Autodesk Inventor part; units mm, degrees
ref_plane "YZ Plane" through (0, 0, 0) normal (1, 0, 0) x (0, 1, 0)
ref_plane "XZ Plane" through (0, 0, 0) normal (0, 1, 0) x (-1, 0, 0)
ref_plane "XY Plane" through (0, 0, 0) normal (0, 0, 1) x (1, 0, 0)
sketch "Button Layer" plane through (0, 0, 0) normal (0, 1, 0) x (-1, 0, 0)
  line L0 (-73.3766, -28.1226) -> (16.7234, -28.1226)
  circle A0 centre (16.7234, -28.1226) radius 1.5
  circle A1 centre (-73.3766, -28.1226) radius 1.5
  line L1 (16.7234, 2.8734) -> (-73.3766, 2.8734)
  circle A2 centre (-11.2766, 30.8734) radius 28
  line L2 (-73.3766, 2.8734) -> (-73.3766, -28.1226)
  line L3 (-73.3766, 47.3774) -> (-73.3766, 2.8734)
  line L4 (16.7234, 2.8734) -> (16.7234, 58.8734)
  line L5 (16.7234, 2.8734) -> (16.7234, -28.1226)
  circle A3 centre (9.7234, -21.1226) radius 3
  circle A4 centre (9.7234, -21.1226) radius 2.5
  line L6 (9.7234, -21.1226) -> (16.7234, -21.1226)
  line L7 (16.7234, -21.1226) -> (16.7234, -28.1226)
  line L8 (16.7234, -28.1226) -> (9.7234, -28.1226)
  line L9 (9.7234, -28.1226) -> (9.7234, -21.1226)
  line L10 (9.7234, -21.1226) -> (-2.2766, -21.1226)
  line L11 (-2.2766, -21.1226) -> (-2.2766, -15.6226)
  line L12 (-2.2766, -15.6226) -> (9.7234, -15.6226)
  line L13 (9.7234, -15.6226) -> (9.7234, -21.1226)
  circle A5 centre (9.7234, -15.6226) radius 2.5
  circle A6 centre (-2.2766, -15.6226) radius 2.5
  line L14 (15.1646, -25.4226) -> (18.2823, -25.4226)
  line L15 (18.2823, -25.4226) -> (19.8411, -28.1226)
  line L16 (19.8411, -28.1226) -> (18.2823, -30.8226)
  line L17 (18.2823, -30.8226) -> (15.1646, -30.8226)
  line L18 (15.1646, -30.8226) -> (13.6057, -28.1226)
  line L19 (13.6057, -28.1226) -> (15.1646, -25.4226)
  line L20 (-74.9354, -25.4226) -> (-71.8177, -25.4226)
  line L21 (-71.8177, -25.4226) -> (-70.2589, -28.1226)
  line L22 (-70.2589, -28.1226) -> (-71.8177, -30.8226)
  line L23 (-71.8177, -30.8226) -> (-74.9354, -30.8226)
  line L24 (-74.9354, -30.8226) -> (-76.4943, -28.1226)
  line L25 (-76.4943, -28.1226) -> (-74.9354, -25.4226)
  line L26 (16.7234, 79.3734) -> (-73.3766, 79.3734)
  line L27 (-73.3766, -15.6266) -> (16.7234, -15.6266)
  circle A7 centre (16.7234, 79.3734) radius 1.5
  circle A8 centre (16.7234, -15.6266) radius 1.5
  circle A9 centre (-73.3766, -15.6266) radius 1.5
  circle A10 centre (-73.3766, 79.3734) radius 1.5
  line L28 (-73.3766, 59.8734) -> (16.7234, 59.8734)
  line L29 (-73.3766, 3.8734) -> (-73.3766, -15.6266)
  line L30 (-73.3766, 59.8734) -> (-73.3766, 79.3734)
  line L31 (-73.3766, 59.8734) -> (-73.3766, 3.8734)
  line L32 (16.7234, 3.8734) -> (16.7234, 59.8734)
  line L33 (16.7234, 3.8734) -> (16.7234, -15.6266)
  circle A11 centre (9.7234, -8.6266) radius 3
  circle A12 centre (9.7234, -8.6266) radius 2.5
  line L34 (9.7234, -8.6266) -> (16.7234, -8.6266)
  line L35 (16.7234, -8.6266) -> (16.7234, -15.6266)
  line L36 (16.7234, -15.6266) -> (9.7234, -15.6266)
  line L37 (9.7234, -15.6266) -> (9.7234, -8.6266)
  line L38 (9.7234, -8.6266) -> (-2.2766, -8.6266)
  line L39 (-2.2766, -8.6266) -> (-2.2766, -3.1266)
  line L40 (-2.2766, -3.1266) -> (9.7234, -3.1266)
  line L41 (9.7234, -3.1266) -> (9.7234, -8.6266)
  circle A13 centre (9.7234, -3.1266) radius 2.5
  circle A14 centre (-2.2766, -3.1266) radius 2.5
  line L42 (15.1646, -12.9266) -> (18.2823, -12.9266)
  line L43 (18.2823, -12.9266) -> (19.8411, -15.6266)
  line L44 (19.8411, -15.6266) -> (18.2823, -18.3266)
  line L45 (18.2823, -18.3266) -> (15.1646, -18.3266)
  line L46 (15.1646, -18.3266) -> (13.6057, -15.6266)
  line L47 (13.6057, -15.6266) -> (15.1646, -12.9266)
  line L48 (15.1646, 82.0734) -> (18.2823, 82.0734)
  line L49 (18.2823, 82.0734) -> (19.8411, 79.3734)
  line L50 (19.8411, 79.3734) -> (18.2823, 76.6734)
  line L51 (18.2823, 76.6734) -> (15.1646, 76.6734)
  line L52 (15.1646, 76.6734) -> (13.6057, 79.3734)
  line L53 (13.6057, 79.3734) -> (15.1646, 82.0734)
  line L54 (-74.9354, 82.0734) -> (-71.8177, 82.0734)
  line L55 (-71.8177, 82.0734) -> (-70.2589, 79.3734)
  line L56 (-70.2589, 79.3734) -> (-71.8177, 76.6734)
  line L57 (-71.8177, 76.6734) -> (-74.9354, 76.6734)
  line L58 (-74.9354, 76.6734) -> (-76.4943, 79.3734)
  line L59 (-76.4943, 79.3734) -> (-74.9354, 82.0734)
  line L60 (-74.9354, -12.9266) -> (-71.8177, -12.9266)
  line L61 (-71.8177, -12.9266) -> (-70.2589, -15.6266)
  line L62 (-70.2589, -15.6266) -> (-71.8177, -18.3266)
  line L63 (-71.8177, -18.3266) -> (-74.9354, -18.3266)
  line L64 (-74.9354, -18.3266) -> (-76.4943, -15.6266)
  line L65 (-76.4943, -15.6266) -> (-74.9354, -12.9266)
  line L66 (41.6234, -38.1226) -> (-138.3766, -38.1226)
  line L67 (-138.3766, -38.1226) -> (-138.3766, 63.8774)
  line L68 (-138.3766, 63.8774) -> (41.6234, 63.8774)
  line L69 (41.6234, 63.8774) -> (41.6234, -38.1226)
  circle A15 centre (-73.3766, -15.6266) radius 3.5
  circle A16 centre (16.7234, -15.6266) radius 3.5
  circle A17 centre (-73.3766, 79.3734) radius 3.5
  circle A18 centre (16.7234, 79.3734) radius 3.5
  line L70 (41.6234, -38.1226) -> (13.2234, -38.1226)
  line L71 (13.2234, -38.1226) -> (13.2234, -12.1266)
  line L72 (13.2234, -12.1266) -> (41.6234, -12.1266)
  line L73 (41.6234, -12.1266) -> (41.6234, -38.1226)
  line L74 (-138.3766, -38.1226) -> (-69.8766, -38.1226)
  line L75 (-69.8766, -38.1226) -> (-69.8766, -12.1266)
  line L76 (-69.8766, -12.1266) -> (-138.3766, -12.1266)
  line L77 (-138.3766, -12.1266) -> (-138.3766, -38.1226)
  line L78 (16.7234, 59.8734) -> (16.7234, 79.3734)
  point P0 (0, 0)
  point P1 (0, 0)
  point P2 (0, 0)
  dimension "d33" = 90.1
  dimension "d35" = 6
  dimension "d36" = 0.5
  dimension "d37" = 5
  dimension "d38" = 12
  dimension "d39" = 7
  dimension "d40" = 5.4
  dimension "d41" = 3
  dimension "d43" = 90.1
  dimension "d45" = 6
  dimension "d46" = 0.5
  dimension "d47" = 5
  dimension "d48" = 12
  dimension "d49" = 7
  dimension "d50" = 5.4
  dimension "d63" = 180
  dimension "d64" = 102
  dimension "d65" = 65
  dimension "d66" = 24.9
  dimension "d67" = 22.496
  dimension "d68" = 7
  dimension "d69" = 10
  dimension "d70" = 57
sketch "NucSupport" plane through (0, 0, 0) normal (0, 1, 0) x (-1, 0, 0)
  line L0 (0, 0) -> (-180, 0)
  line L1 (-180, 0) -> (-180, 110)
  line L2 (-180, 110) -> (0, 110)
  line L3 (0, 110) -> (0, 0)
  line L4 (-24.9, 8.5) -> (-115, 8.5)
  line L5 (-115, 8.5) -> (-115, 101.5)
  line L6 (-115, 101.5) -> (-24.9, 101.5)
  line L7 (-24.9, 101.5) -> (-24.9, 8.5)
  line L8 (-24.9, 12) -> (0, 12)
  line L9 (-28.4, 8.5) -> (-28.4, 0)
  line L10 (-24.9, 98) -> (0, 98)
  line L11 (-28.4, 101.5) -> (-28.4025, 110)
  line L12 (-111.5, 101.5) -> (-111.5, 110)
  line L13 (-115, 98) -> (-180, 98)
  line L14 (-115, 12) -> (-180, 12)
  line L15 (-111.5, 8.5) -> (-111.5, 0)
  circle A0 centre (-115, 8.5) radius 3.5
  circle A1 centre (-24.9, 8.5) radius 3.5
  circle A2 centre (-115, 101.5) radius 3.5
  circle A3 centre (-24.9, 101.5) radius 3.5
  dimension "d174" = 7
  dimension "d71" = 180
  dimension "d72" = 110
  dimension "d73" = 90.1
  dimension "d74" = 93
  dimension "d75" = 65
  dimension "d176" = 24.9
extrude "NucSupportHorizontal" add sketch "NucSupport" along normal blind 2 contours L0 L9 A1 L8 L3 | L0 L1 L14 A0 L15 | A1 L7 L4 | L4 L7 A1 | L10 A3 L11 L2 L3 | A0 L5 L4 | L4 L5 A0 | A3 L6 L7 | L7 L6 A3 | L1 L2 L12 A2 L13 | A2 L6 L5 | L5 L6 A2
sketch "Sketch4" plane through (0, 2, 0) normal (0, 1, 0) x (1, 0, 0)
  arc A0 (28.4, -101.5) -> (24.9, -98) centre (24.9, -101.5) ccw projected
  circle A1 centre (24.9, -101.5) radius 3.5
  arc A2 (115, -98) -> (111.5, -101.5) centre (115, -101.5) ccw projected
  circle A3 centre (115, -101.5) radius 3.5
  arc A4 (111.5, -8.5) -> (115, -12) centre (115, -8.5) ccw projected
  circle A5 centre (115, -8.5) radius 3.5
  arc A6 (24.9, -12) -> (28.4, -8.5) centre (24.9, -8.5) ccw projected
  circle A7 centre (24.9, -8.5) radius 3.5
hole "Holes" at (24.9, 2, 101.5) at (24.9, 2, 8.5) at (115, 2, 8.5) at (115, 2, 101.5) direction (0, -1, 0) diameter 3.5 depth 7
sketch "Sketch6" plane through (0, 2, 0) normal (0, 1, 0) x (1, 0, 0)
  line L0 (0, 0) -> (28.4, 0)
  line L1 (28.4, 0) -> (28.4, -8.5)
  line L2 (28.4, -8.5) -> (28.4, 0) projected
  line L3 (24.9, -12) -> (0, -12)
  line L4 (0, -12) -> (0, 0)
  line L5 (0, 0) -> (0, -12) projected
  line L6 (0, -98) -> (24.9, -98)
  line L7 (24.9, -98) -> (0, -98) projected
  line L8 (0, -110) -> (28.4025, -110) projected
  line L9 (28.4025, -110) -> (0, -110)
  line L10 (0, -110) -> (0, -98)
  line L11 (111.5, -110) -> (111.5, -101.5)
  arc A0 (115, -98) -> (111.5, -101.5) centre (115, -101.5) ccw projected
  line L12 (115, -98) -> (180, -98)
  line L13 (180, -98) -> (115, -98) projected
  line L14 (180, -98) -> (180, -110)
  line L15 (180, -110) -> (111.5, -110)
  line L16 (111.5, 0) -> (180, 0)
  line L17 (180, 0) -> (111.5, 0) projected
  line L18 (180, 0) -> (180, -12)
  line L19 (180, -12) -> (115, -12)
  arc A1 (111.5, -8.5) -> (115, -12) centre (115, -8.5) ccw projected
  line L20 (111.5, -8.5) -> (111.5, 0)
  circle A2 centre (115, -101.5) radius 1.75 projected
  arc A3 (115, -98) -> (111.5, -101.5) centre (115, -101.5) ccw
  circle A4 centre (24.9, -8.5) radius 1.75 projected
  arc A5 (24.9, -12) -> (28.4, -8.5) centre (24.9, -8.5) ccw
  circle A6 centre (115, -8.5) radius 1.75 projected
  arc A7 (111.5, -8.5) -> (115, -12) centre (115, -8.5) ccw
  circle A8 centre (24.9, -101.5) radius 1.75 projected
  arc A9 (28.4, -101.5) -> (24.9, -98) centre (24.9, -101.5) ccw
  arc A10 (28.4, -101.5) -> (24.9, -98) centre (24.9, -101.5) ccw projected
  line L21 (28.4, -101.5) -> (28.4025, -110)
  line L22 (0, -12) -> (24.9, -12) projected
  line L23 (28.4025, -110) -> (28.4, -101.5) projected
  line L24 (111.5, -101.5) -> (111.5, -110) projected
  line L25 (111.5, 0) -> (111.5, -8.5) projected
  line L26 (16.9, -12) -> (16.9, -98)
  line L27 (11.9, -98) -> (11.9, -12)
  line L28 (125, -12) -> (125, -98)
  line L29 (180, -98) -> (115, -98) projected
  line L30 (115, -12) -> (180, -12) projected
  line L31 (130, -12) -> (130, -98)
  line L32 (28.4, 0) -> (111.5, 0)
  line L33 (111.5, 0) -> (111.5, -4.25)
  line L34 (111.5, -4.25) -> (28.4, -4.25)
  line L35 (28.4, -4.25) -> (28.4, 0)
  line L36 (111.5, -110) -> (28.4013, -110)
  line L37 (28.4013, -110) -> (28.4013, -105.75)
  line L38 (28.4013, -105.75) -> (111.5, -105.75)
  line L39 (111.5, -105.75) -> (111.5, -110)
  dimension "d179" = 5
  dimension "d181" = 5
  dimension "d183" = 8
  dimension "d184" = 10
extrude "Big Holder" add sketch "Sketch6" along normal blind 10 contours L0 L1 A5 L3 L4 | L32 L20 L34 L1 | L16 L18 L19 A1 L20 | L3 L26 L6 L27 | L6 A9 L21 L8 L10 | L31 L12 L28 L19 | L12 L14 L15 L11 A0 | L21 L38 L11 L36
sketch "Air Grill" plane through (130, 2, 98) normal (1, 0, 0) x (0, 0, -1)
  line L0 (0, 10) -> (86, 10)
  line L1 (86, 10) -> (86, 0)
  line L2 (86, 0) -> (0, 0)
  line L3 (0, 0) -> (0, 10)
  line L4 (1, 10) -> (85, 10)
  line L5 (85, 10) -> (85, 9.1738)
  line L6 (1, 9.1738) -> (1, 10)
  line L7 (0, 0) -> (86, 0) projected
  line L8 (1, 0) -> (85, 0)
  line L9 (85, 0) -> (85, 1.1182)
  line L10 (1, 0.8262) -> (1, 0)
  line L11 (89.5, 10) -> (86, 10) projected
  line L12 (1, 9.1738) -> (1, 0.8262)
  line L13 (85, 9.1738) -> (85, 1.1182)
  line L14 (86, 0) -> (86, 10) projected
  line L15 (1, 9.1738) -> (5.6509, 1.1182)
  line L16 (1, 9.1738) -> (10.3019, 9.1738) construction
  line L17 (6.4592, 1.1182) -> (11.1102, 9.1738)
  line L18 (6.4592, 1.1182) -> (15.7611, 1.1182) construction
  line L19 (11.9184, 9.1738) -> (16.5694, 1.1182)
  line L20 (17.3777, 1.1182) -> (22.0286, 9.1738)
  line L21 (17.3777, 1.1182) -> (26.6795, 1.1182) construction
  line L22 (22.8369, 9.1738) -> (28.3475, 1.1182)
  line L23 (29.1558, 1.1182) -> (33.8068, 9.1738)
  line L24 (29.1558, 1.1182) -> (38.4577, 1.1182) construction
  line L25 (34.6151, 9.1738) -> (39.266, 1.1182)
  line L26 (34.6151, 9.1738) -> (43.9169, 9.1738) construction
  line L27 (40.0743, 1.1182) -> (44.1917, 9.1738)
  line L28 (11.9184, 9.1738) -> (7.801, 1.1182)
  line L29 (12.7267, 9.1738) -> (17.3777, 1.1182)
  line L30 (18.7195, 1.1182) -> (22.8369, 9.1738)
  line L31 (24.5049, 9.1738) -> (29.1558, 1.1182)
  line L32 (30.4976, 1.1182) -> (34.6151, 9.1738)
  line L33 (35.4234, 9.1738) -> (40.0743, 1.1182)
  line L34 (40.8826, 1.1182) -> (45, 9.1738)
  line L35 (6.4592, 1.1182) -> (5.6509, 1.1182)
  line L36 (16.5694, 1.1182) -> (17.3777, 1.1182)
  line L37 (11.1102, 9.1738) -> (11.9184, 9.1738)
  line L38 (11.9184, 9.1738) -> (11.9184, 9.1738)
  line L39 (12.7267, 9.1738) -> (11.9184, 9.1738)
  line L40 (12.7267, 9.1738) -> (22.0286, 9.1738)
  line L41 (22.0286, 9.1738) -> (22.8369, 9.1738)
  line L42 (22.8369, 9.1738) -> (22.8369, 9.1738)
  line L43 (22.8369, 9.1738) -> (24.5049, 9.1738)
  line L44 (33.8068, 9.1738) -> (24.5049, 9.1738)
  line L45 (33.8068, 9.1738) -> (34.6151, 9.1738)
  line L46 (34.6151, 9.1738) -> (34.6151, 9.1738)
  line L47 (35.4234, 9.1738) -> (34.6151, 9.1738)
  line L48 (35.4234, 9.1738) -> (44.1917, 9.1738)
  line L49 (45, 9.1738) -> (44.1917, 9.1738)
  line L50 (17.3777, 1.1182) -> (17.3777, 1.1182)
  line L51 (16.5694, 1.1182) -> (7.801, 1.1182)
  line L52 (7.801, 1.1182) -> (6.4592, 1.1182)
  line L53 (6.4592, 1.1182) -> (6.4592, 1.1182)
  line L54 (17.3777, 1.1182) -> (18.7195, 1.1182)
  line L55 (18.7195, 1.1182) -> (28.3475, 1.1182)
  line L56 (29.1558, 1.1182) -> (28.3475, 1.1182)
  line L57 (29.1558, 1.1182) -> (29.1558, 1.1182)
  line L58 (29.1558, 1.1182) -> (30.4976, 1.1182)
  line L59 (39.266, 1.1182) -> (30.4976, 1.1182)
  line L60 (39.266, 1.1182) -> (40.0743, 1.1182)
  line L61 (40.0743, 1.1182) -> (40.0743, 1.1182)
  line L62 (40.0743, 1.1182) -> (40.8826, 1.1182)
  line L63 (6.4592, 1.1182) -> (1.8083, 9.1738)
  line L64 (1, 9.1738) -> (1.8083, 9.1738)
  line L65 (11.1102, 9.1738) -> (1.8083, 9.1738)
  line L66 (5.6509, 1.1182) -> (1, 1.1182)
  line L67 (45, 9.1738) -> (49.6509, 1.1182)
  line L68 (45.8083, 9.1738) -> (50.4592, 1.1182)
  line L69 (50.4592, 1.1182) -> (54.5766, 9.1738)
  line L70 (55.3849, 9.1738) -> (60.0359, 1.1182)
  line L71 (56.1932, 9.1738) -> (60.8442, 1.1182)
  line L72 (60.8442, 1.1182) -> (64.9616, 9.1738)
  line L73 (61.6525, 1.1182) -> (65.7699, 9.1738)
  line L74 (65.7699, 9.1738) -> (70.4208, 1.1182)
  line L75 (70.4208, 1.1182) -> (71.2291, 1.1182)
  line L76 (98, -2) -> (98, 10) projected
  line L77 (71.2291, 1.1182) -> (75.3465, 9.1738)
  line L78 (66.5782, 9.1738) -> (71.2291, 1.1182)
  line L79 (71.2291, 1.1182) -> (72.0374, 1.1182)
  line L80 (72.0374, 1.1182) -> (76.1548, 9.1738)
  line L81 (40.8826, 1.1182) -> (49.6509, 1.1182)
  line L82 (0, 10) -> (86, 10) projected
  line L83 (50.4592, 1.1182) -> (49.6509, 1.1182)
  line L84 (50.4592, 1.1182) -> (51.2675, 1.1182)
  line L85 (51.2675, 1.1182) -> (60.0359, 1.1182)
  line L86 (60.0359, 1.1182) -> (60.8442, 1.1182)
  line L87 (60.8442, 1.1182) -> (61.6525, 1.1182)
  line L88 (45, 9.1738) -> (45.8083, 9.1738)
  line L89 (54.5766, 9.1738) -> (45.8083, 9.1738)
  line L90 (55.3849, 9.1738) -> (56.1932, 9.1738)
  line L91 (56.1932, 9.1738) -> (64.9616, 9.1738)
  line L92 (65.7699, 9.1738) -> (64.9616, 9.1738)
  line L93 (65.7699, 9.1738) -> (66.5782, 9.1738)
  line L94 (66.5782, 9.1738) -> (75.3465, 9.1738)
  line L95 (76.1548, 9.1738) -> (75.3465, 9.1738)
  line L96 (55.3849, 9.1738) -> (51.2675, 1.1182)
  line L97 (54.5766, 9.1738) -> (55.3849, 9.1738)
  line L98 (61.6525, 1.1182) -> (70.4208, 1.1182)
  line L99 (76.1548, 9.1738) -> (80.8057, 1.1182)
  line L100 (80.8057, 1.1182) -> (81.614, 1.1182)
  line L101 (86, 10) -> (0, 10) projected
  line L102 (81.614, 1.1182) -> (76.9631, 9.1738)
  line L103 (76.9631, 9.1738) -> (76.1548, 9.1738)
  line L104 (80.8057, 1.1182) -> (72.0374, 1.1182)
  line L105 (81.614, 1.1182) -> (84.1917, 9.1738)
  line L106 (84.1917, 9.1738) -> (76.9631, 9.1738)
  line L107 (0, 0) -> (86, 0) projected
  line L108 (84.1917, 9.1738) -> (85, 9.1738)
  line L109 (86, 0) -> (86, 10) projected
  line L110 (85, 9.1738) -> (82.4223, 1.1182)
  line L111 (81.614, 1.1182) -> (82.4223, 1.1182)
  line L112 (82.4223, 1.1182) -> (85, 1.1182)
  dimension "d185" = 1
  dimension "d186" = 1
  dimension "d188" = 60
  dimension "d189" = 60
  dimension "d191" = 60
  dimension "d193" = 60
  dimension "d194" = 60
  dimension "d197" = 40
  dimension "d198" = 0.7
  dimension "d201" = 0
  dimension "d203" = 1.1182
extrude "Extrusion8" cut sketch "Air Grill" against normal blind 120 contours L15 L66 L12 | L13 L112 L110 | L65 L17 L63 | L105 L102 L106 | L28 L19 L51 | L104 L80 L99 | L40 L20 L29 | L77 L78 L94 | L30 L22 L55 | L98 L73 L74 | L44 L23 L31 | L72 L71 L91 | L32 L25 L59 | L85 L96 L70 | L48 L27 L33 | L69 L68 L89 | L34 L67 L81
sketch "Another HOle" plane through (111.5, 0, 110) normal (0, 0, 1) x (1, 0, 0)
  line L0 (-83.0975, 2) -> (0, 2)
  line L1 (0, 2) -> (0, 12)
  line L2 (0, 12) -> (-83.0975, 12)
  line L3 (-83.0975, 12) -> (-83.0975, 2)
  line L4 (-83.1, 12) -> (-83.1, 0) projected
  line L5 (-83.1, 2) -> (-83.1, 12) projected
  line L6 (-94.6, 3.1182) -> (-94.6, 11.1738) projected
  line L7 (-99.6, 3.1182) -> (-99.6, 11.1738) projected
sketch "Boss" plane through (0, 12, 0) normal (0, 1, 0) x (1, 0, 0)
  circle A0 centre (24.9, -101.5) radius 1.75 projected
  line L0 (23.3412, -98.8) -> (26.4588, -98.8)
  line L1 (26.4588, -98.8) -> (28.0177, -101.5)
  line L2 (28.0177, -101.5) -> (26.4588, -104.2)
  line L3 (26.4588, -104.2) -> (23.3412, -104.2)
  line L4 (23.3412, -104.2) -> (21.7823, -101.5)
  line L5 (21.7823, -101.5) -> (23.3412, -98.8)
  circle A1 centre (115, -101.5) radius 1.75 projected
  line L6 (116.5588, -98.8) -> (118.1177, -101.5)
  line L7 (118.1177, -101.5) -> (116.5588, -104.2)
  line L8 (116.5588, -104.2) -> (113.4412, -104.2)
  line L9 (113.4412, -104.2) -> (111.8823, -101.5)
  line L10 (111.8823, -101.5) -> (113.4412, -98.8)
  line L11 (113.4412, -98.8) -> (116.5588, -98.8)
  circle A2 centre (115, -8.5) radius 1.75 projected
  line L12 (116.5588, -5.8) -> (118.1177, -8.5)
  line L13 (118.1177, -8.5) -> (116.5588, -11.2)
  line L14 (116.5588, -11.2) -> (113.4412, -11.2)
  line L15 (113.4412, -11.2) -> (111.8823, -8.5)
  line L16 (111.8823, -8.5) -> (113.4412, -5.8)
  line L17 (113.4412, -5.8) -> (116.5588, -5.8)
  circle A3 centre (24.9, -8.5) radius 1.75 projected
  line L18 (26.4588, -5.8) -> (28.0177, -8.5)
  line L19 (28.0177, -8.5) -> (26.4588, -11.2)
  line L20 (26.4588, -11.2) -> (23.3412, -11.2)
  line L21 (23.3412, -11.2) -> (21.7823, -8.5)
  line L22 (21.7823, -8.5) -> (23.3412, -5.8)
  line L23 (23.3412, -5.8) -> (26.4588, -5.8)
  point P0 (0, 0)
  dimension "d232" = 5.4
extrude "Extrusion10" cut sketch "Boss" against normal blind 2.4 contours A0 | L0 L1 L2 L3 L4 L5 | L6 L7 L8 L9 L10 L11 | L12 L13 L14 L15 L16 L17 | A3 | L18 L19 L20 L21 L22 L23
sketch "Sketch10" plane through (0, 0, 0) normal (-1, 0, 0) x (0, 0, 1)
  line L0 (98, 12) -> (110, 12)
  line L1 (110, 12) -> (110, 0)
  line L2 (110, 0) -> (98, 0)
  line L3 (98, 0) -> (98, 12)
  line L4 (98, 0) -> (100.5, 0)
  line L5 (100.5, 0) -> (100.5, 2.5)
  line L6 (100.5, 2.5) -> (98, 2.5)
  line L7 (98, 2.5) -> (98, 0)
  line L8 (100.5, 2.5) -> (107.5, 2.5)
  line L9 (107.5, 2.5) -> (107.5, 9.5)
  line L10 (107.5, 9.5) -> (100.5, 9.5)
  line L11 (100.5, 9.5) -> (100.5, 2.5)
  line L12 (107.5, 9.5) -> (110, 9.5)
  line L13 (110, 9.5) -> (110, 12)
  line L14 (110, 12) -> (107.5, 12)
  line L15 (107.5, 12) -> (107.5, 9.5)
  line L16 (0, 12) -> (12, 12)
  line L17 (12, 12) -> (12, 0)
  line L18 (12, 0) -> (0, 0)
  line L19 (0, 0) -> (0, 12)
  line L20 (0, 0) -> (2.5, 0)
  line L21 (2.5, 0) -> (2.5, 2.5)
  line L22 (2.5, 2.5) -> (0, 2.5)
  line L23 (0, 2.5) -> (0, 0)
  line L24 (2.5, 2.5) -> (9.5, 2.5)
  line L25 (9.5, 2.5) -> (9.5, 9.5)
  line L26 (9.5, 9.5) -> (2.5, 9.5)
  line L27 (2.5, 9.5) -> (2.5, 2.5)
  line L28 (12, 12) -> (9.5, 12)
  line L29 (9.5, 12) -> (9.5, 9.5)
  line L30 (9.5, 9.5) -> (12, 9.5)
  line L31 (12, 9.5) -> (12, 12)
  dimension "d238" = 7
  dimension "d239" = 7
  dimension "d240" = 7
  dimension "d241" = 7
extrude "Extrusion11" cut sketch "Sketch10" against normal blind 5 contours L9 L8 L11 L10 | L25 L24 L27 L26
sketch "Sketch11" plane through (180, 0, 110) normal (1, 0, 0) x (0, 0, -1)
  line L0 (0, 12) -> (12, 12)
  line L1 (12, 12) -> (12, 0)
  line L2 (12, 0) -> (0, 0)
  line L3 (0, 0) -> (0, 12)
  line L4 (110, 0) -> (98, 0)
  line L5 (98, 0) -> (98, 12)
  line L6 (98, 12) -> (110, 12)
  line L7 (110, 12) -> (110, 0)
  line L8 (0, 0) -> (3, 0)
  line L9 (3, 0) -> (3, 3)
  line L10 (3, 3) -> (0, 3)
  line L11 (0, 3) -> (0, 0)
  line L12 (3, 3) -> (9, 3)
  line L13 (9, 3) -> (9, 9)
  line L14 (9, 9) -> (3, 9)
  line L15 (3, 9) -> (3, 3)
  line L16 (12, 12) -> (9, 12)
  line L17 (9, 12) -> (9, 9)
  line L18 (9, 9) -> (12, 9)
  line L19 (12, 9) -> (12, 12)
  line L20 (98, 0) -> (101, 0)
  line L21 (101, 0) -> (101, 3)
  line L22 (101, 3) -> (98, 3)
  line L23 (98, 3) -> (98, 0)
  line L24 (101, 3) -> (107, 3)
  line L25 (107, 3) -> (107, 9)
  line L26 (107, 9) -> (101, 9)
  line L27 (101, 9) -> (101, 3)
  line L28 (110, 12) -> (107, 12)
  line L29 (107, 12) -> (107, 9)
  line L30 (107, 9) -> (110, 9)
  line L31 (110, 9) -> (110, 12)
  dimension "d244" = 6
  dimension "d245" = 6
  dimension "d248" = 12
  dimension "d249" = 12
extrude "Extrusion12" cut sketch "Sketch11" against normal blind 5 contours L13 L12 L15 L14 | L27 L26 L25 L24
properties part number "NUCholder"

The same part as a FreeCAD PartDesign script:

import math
import FreeCAD as App
import Part
import Sketcher
from FreeCAD import Vector
Q = App.Units.Quantity


def add_polygon(sketch, points):
    """Adds a closed chain of lines whose ends are joined by coincident constraints."""
    first, n = sketch.GeometryCount, len(points)
    for a, b in zip(points, points[1:] + points[:1]):
        sketch.addGeometry(Part.LineSegment(App.Vector(*a, 0), App.Vector(*b, 0)), False)
    for i in range(n):
        sketch.addConstraint(Sketcher.Constraint("Coincident", first + i, 2, first + (i + 1) % n, 1))

doc = App.newDocument("Part")
body = doc.addObject("PartDesign::Body", "Body")
body.AllowCompound = True

sketch1 = body.newObject("Sketcher::SketchObject", "Sketch")
sketch1.AttachmentSupport = (doc.getObject("XZ_Plane"), [""])
sketch1.MapMode = "FlatFace"
sketch1.addGeometry([
    Part.LineSegment(Vector(28.4, 0, 0), Vector(0, 0, 0)),
    Part.LineSegment(Vector(0, 0, 0), Vector(0, 12, 0)),
    Part.LineSegment(Vector(0, 12, 0), Vector(24.9, 12, 0)),
    Part.ArcOfCircle(Part.Circle(Vector(24.9, 8.5, 0), Vector(0, 0, 1), 3.5), math.radians(0), math.radians(90)),
    Part.LineSegment(Vector(28.4, 8.5, 0), Vector(28.4, 0, 0)),
    Part.LineSegment(Vector(180, 0, 0), Vector(111.5, 0, 0)),
    Part.LineSegment(Vector(111.5, 0, 0), Vector(111.5, 8.5, 0)),
    Part.ArcOfCircle(Part.Circle(Vector(115, 8.5, 0), Vector(0, 0, 1), 3.5), math.radians(90), math.radians(180)),
    Part.LineSegment(Vector(115, 12, 0), Vector(180, 12, 0)),
    Part.LineSegment(Vector(180, 12, 0), Vector(180, 0, 0)),
    Part.LineSegment(Vector(24.9, 98, 0), Vector(0, 98, 0)),
    Part.LineSegment(Vector(0, 98, 0), Vector(0, 110, 0)),
    Part.LineSegment(Vector(0, 110, 0), Vector(28.4025, 110, 0)),
    Part.LineSegment(Vector(28.4025, 110, 0), Vector(28.4, 101.5, 0)),
    Part.ArcOfCircle(Part.Circle(Vector(24.9, 101.5, 0), Vector(0, 0, 1), 3.5), math.radians(-90), math.radians(0)),
    Part.LineSegment(Vector(180, 110, 0), Vector(180, 98, 0)),
    Part.LineSegment(Vector(180, 98, 0), Vector(115, 98, 0)),
    Part.ArcOfCircle(Part.Circle(Vector(115, 101.5, 0), Vector(0, 0, 1), 3.5), math.radians(180), math.radians(270)),
    Part.LineSegment(Vector(111.5, 101.5, 0), Vector(111.5, 110, 0)),
    Part.LineSegment(Vector(111.5, 110, 0), Vector(180, 110, 0)),
], False)
sketch1.addConstraint([
    Sketcher.Constraint("Coincident", 0, 2, 1, 1),
    Sketcher.Constraint("Coincident", 1, 2, 2, 1),
    Sketcher.Constraint("Coincident", 2, 2, 3, 2),
    Sketcher.Constraint("Coincident", 3, 1, 4, 1),
    Sketcher.Constraint("Coincident", 4, 2, 0, 1),
    Sketcher.Constraint("Coincident", 5, 2, 6, 1),
    Sketcher.Constraint("Coincident", 6, 2, 7, 2),
    Sketcher.Constraint("Coincident", 7, 1, 8, 1),
    Sketcher.Constraint("Coincident", 8, 2, 9, 1),
    Sketcher.Constraint("Coincident", 9, 2, 5, 1),
    Sketcher.Constraint("Coincident", 10, 2, 11, 1),
    Sketcher.Constraint("Coincident", 11, 2, 12, 1),
    Sketcher.Constraint("Coincident", 12, 2, 13, 1),
    Sketcher.Constraint("Coincident", 13, 2, 14, 2),
    Sketcher.Constraint("Coincident", 14, 1, 10, 1),
    Sketcher.Constraint("Coincident", 15, 2, 16, 1),
    Sketcher.Constraint("Coincident", 16, 2, 17, 2),
    Sketcher.Constraint("Coincident", 17, 1, 18, 1),
    Sketcher.Constraint("Coincident", 18, 2, 19, 1),
    Sketcher.Constraint("Coincident", 19, 2, 15, 1),
    Sketcher.Constraint("Horizontal", 0),
    Sketcher.Constraint("Vertical", 1),
    Sketcher.Constraint("Horizontal", 2),
    Sketcher.Constraint("Vertical", 4),
    Sketcher.Constraint("Horizontal", 5),
    Sketcher.Constraint("Vertical", 6),
    Sketcher.Constraint("Horizontal", 8),
    Sketcher.Constraint("Vertical", 9),
    Sketcher.Constraint("Horizontal", 10),
    Sketcher.Constraint("Vertical", 11),
    Sketcher.Constraint("Horizontal", 12),
    Sketcher.Constraint("Vertical", 15),
    Sketcher.Constraint("Horizontal", 16),
    Sketcher.Constraint("Vertical", 18),
    Sketcher.Constraint("Horizontal", 19),
    Sketcher.Constraint("Coincident", 0, 2, -1, 1),
    Sketcher.Constraint("PointOnObject", 5, 2, -1),
    Sketcher.Constraint("PointOnObject", 10, 2, -2),
    Sketcher.Constraint("Radius", 3, 3.5),
    Sketcher.Constraint("Radius", 7, 3.5),
    Sketcher.Constraint("Radius", 14, 3.5),
    Sketcher.Constraint("Radius", 17, 3.5),
    Sketcher.Constraint("DistanceX", 8, 1, 8, 2, 65.0),
    Sketcher.Constraint("DistanceX", 16, 2, 16, 1, 65.0),
    Sketcher.Constraint("DistanceX", 2, 1, 2, 2, 24.9),
    Sketcher.Constraint("DistanceX", 10, 2, 10, 1, 24.9),
    Sketcher.Constraint("DistanceX", -1, 1, 8, 2, 180.0),
    Sketcher.Constraint("DistanceY", -1, 1, 11, 2, 110.0),
    Sketcher.Constraint("DistanceX", -1, 1, 15, 2, 180.0),
    Sketcher.Constraint("DistanceY", -1, 1, 18, 2, 110.0),
    Sketcher.Constraint("DistanceY", 3, 3, 14, 3, 93.0),
    Sketcher.Constraint("DistanceY", 7, 3, 14, 3, 93.0),
    Sketcher.Constraint("DistanceY", 7, 3, 17, 3, 93.0),
    Sketcher.Constraint("DistanceX", 7, 3, 8, 2, 65.0),
    Sketcher.Constraint("DistanceX", 17, 3, 8, 2, 65.0),
    Sketcher.Constraint("DistanceX", -1, 1, 3, 3, 24.9),
    Sketcher.Constraint("DistanceX", -1, 1, 14, 3, 24.9),
    Sketcher.Constraint("DistanceY", 1, 1, 1, 2, 12.0),
    Sketcher.Constraint("DistanceY", 4, 2, 4, 1, 8.5),
    Sketcher.Constraint("DistanceY", 6, 1, 6, 2, 8.5),
    Sketcher.Constraint("DistanceY", 18, 1, 18, 2, 8.5),
    Sketcher.Constraint("Distance", 13, 8.5),
    Sketcher.Constraint("DistanceX", 12, 1, 12, 2, 28.4025),
])
pad1 = body.newObject("PartDesign::Pad", "Pad")
pad1.Profile = sketch1
pad1.Length = 2
pad1.Reversed = True

sketch2 = body.newObject("Sketcher::SketchObject", "Sketch001")
sketch2.AttachmentSupport = (doc.getObject("XZ_Plane"), [""])
sketch2.MapMode = "FlatFace"
sketch2.AttachmentOffset = App.Placement(Vector(0, 0, -2), App.Rotation())
sketch2.addGeometry([
    Part.Circle(Vector(24.9, 101.5, 0), Vector(0, 0, 1), 1.8),
    Part.Circle(Vector(24.9, 8.5, 0), Vector(0, 0, 1), 1.8),
    Part.Circle(Vector(115, 8.5, 0), Vector(0, 0, 1), 1.8),
    Part.Circle(Vector(115, 101.5, 0), Vector(0, 0, 1), 1.8),
], False)
sketch2.addConstraint([
    Sketcher.Constraint("Equal", 0, 1),
    Sketcher.Constraint("Equal", 1, 2),
    Sketcher.Constraint("Equal", 2, 3),
    Sketcher.Constraint("Horizontal", 1, 3, 2, 3),
    Sketcher.Constraint("Horizontal", 0, 3, 3, 3),
    Sketcher.Constraint("Vertical", 0, 3, 1, 3),
    Sketcher.Constraint("Vertical", 2, 3, 3, 3),
    Sketcher.Constraint("Diameter", 0, 3.5),
    Sketcher.Constraint("DistanceX", -1, 1, 2, 3, 115.0),
    Sketcher.Constraint("DistanceY", 1, 3, 0, 3, 93.0),
    Sketcher.Constraint("DistanceX", -1, 1, 0, 3, 24.9),
    Sketcher.Constraint("DistanceY", -1, 1, 0, 3, 101.5),
])
doc.recompute()
hole = body.newObject("PartDesign::Hole", "Hole")
hole.Profile = sketch2
hole.ThreadType = "None"
hole.Diameter = 3.5
hole.DepthType = "Dimension"
hole.Depth = 7
hole.DrillPoint = "Flat"
hole.Reversed = True

sketch3 = body.newObject("Sketcher::SketchObject", "Sketch002")
sketch3.AttachmentSupport = (doc.getObject("XZ_Plane"), [""])
sketch3.MapMode = "FlatFace"
sketch3.AttachmentOffset = App.Placement(Vector(0, 0, -2), App.Rotation())
add_polygon(sketch3, [(0, 0), (0, 12), (11.9, 12), (11.9, 98), (0, 98), (0, 110), (180, 110), (180, 98), (130, 98), (130, 12), (180, 12), (180, 0)])
sketch3.addGeometry(Part.LineSegment(Vector(28.4, 8.5, 0), Vector(28.4, 4.2, 0)), False)
sketch3.addGeometry(Part.LineSegment(Vector(28.4, 4.2, 0), Vector(111.5, 4.2, 0)), False)
sketch3.addGeometry(Part.LineSegment(Vector(111.5, 4.2, 0), Vector(111.5, 8.5, 0)), False)
sketch3.addGeometry(Part.ArcOfCircle(Part.Circle(Vector(115, 8.5, 0), Vector(0, 0, 1), 3.5), math.radians(90), math.radians(180)), False)
sketch3.addGeometry(Part.LineSegment(Vector(115, 12, 0), Vector(125, 12, 0)), False)
sketch3.addGeometry(Part.LineSegment(Vector(125, 12, 0), Vector(125, 98, 0)), False)
sketch3.addGeometry(Part.LineSegment(Vector(125, 98, 0), Vector(115, 98, 0)), False)
sketch3.addGeometry(Part.ArcOfCircle(Part.Circle(Vector(115, 101.5, 0), Vector(0, 0, 1), 3.5), math.radians(180), math.radians(270)), False)
sketch3.addGeometry(Part.LineSegment(Vector(111.5, 101.5, 0), Vector(111.5, 105.8, 0)), False)
sketch3.addGeometry(Part.LineSegment(Vector(111.5, 105.8, 0), Vector(28.4, 105.8, 0)), False)
sketch3.addGeometry(Part.LineSegment(Vector(28.4, 105.8, 0), Vector(28.4, 101.5, 0)), False)
sketch3.addGeometry(Part.ArcOfCircle(Part.Circle(Vector(24.9, 101.5, 0), Vector(0, 0, 1), 3.5), math.radians(-90), math.radians(0)), False)
sketch3.addGeometry(Part.LineSegment(Vector(24.9, 98, 0), Vector(16.9, 98, 0)), False)
sketch3.addGeometry(Part.LineSegment(Vector(16.9, 98, 0), Vector(16.9, 12, 0)), False)
sketch3.addGeometry(Part.LineSegment(Vector(16.9, 12, 0), Vector(24.9, 12, 0)), False)
sketch3.addGeometry(Part.ArcOfCircle(Part.Circle(Vector(24.9, 8.5, 0), Vector(0, 0, 1), 3.5), math.radians(0), math.radians(90)), False)
sketch3.addGeometry(Part.Circle(Vector(24.9, 8.5, 0), Vector(0, 0, 1), 1.8), False)
sketch3.addGeometry(Part.Circle(Vector(115, 8.5, 0), Vector(0, 0, 1), 1.8), False)
sketch3.addGeometry(Part.Circle(Vector(24.9, 101.5, 0), Vector(0, 0, 1), 1.8), False)
sketch3.addGeometry(Part.Circle(Vector(115, 101.5, 0), Vector(0, 0, 1), 1.8), False)
sketch3.addConstraint([
    Sketcher.Constraint("Coincident", 12, 2, 13, 1),
    Sketcher.Constraint("Coincident", 13, 2, 14, 1),
    Sketcher.Constraint("Tangent", 14, 2, 15, 2),
    Sketcher.Constraint("Tangent", 15, 1, 16, 1),
    Sketcher.Constraint("Coincident", 16, 2, 17, 1),
    Sketcher.Constraint("Coincident", 17, 2, 18, 1),
    Sketcher.Constraint("Tangent", 18, 2, 19, 2),
    Sketcher.Constraint("Tangent", 19, 1, 20, 1),
    Sketcher.Constraint("Coincident", 20, 2, 21, 1),
    Sketcher.Constraint("Coincident", 21, 2, 22, 1),
    Sketcher.Constraint("Tangent", 22, 2, 23, 2),
    Sketcher.Constraint("Tangent", 23, 1, 24, 1),
    Sketcher.Constraint("Coincident", 24, 2, 25, 1),
    Sketcher.Constraint("Coincident", 25, 2, 26, 1),
    Sketcher.Constraint("Tangent", 26, 2, 27, 2),
    Sketcher.Constraint("Tangent", 27, 1, 12, 1),
    Sketcher.Constraint("Vertical", 0),
    Sketcher.Constraint("Horizontal", 1),
    Sketcher.Constraint("Vertical", 2),
    Sketcher.Constraint("Horizontal", 3),
    Sketcher.Constraint("Vertical", 4),
    Sketcher.Constraint("Horizontal", 5),
    Sketcher.Constraint("Vertical", 6),
    Sketcher.Constraint("Horizontal", 7),
    Sketcher.Constraint("Vertical", 8),
    Sketcher.Constraint("Horizontal", 9),
    Sketcher.Constraint("Vertical", 10),
    Sketcher.Constraint("Horizontal", 11),
    Sketcher.Constraint("Vertical", 12),
    Sketcher.Constraint("Horizontal", 13),
    Sketcher.Constraint("Vertical", 14),
    Sketcher.Constraint("Horizontal", 16),
    Sketcher.Constraint("Vertical", 17),
    Sketcher.Constraint("Horizontal", 18),
    Sketcher.Constraint("Vertical", 20),
    Sketcher.Constraint("Horizontal", 21),
    Sketcher.Constraint("Horizontal", 24),
    Sketcher.Constraint("Vertical", 25),
    Sketcher.Constraint("Horizontal", 26),
    Sketcher.Constraint("Coincident", 11, 2, -1, 1),
    Sketcher.Constraint("Coincident", 28, 3, 27, 3),
    Sketcher.Constraint("Coincident", 29, 3, 15, 3),
    Sketcher.Constraint("Coincident", 30, 3, 23, 3),
    Sketcher.Constraint("Coincident", 31, 3, 19, 3),
    Sketcher.Constraint("Equal", 15, 19),
    Sketcher.Constraint("Equal", 19, 23),
    Sketcher.Constraint("Equal", 23, 27),
    Sketcher.Constraint("Equal", 28, 29),
    Sketcher.Constraint("Equal", 29, 30),
    Sketcher.Constraint("Equal", 30, 31),
    Sketcher.Constraint("PointOnObject", 3, 2, -2),
    Sketcher.Constraint("Horizontal", 19, 3, 23, 3),
    Sketcher.Constraint("Horizontal", 15, 3, 27, 3),
    Sketcher.Constraint("Horizontal", 3, 2, 6, 2),
    Sketcher.Constraint("Horizontal", 1, 2, 8, 2),
    Sketcher.Constraint("Horizontal", 9, 2, 15, 1),
    Sketcher.Constraint("Horizontal", 7, 2, 17, 2),
    Sketcher.Constraint("Horizontal", 19, 1, 22, 2),
    Sketcher.Constraint("Vertical", 15, 3, 19, 3),
    Sketcher.Constraint("Vertical", 23, 3, 27, 3),
    Sketcher.Constraint("Vertical", 6, 2, 9, 2),
    Sketcher.Constraint("Equal", 0, 4),
    Sketcher.Constraint("Equal", 14, 20),
    Sketcher.Constraint("DistanceX", 16, 1, 16, 2, 10.0),
    Sketcher.Constraint("DistanceX", 24, 2, 24, 1, 8.0),
    Sketcher.Constraint("DistanceX", 16, 2, 8, 2, 5.0),
    Sketcher.Constraint("DistanceX", 2, 2, 24, 2, 5.0),
    Sketcher.Constraint("Diameter", 28, 3.5),
    Sketcher.Constraint("Radius", 15, 3.5),
    Sketcher.Constraint("DistanceX", 5, 1, 5, 2, 180.0),
    Sketcher.Constraint("DistanceX", 7, 2, 7, 1, 50.0),
    Sketcher.Constraint("DistanceY", 0, 1, 0, 2, 12.0),
    Sketcher.Constraint("DistanceY", 2, 1, 2, 2, 86.0),
    Sketcher.Constraint("DistanceX", 1, 1, 1, 2, 11.9),
    Sketcher.Constraint("DistanceY", 12, 2, 12, 1, 4.25),
])
pad2 = body.newObject("PartDesign::Pad", "Pad001")
pad2.Profile = sketch3
pad2.Length = 10
pad2.Reversed = True

sketch4 = body.newObject("Sketcher::SketchObject", "Sketch003")
sketch4.AttachmentSupport = (doc.getObject("YZ_Plane"), [""])
sketch4.MapMode = "FlatFace"
sketch4.AttachmentOffset = App.Placement(Vector(0, 0, 130), App.Rotation())
add_polygon(sketch4, [(3.1, 92.3), (11.2, 97), (3.1, 97)])
add_polygon(sketch4, [(3.1, 13), (11.2, 13), (3.1, 15.6)])
add_polygon(sketch4, [(11.2, 86.9), (11.2, 96.2), (3.1, 91.5)])
add_polygon(sketch4, [(3.1, 16.4), (11.2, 13.8), (11.2, 21)])
add_polygon(sketch4, [(11.2, 86.1), (3.1, 90.2), (3.1, 81.4)])
add_polygon(sketch4, [(3.1, 26), (3.1, 17.2), (11.2, 21.8)])
add_polygon(sketch4, [(11.2, 76), (11.2, 85.3), (3.1, 80.6)])
add_polygon(sketch4, [(3.1, 26.8), (11.2, 22.7), (11.2, 31.4)])
add_polygon(sketch4, [(11.2, 75.2), (3.1, 79.3), (3.1, 69.7)])
add_polygon(sketch4, [(3.1, 36.3), (3.1, 27.6), (11.2, 32.2)])
add_polygon(sketch4, [(11.2, 64.2), (11.2, 73.5), (3.1, 68.8)])
add_polygon(sketch4, [(3.1, 37.2), (11.2, 33), (11.2, 41.8)])
add_polygon(sketch4, [(11.2, 63.4), (3.1, 67.5), (3.1, 58.7)])
add_polygon(sketch4, [(3.1, 46.7), (3.1, 38), (11.2, 42.6)])
add_polygon(sketch4, [(11.2, 53.8), (11.2, 62.6), (3.1, 57.9)])
add_polygon(sketch4, [(3.1, 47.5), (11.2, 43.4), (11.2, 52.2)])
add_polygon(sketch4, [(11.2, 53), (3.1, 57.1), (3.1, 48.3)])
sketch4.addConstraint([
    Sketcher.Constraint("Horizontal", 1),
    Sketcher.Constraint("Vertical", 2),
    Sketcher.Constraint("Horizontal", 3),
    Sketcher.Constraint("Vertical", 5),
    Sketcher.Constraint("Vertical", 6),
    Sketcher.Constraint("Vertical", 10),
    Sketcher.Constraint("Vertical", 13),
    Sketcher.Constraint("Vertical", 15),
    Sketcher.Constraint("Vertical", 18),
    Sketcher.Constraint("Vertical", 22),
    Sketcher.Constraint("Vertical", 25),
    Sketcher.Constraint("Vertical", 27),
    Sketcher.Constraint("Vertical", 30),
    Sketcher.Constraint("Vertical", 34),
    Sketcher.Constraint("Vertical", 37),
    Sketcher.Constraint("Vertical", 39),
    Sketcher.Constraint("Vertical", 42),
    Sketcher.Constraint("Vertical", 46),
    Sketcher.Constraint("Vertical", 49),
    Sketcher.Constraint("Parallel", 0, 7),
    Sketcher.Constraint("Parallel", 4, 9),
    Sketcher.Constraint("Parallel", 7, 11),
    Sketcher.Constraint("Parallel", 11, 14),
    Sketcher.Constraint("Parallel", 14, 16),
    Sketcher.Constraint("Parallel", 12, 17),
    Sketcher.Constraint("Parallel", 16, 19),
    Sketcher.Constraint("Parallel", 8, 20),
    Sketcher.Constraint("Parallel", 17, 21),
    Sketcher.Constraint("Parallel", 19, 23),
    Sketcher.Constraint("Parallel", 21, 24),
    Sketcher.Constraint("Parallel", 23, 28),
    Sketcher.Constraint("Parallel", 24, 29),
    Sketcher.Constraint("Parallel", 28, 31),
    Sketcher.Constraint("Parallel", 20, 32),
    Sketcher.Constraint("Parallel", 29, 33),
    Sketcher.Constraint("Parallel", 31, 35),
    Sketcher.Constraint("Parallel", 33, 36),
    Sketcher.Constraint("Parallel", 35, 38),
    Sketcher.Constraint("Parallel", 38, 40),
    Sketcher.Constraint("Parallel", 36, 41),
    Sketcher.Constraint("Parallel", 40, 43),
    Sketcher.Constraint("Parallel", 41, 44),
    Sketcher.Constraint("Parallel", 44, 45),
    Sketcher.Constraint("Parallel", 43, 47),
    Sketcher.Constraint("Parallel", 45, 48),
    Sketcher.Constraint("Parallel", 47, 50),
    Sketcher.Constraint("Vertical", 0, 2, 3, 2),
    Sketcher.Constraint("Vertical", 2, 2, 4, 2),
    Sketcher.Constraint("Vertical", 3, 2, 6, 2),
    Sketcher.Constraint("Vertical", 5, 2, 7, 2),
    Sketcher.Constraint("Vertical", 8, 2, 9, 2),
    Sketcher.Constraint("Vertical", 7, 2, 11, 2),
    Sketcher.Constraint("Vertical", 11, 2, 12, 2),
    Sketcher.Constraint("Vertical", 10, 2, 14, 2),
    Sketcher.Constraint("Vertical", 13, 2, 15, 2),
    Sketcher.Constraint("Vertical", 14, 2, 16, 2),
    Sketcher.Constraint("Vertical", 16, 2, 18, 2),
    Sketcher.Constraint("Vertical", 17, 2, 19, 2),
    Sketcher.Constraint("Vertical", 20, 2, 21, 2),
    Sketcher.Constraint("Vertical", 19, 2, 23, 2),
    Sketcher.Constraint("Vertical", 23, 2, 24, 2),
    Sketcher.Constraint("Vertical", 22, 2, 26, 2),
    Sketcher.Constraint("Vertical", 25, 2, 27, 2),
    Sketcher.Constraint("Vertical", 26, 2, 28, 2),
    Sketcher.Constraint("Vertical", 28, 2, 30, 2),
    Sketcher.Constraint("Vertical", 29, 2, 31, 2),
    Sketcher.Constraint("Vertical", 32, 2, 33, 2),
    Sketcher.Constraint("Vertical", 31, 2, 35, 2),
    Sketcher.Constraint("Vertical", 35, 2, 36, 2),
    Sketcher.Constraint("Vertical", 34, 2, 38, 2),
    Sketcher.Constraint("Vertical", 37, 2, 39, 2),
    Sketcher.Constraint("Vertical", 38, 2, 40, 2),
    Sketcher.Constraint("Vertical", 40, 2, 42, 2),
    Sketcher.Constraint("Vertical", 41, 2, 43, 2),
    Sketcher.Constraint("Vertical", 44, 2, 45, 2),
    Sketcher.Constraint("Vertical", 43, 2, 47, 2),
    Sketcher.Constraint("Vertical", 47, 2, 48, 2),
    Sketcher.Constraint("Vertical", 46, 2, 50, 2),
    Sketcher.Constraint("Equal", 7, 8),
    Sketcher.Constraint("Angle", 0, Q("30 deg")),
    Sketcher.Constraint("DistanceY", -1, 1, 0, 2, 97.0),
    Sketcher.Constraint("DistanceY", -1, 1, 3, 2, 13.0),
    Sketcher.Constraint("DistanceY", -1, 1, 50, 2, 53.0),
    Sketcher.Constraint("Distance", 26, 9.76),
    Sketcher.Constraint("DistanceY", 2, 2, 2, 1, 4.651),
    Sketcher.Constraint("DistanceY", 25, 2, 25, 1, 9.628),
    Sketcher.Constraint("DistanceY", -1, 1, 28, 2, 32.23),
    Sketcher.Constraint("DistanceY", 12, 2, 2, 2, 2.15),
    Sketcher.Constraint("DistanceY", 14, 2, 6, 2, 10.11),
    Sketcher.Constraint("DistanceY", 24, 2, 13, 2, 2.15),
    Sketcher.Constraint("DistanceY", 32, 2, 26, 2, 10.97),
    Sketcher.Constraint("DistanceY", 36, 2, 25, 2, 2.15),
    Sketcher.Constraint("Distance", 4, 8.458),
    Sketcher.Constraint("DistanceY", -1, 1, 10, 2, 21.037),
    Sketcher.Constraint("DistanceY", -1, 1, 23, 2, 26.771),
    Sketcher.Constraint("DistanceY", -1, 1, 39, 2, 37.964),
    Sketcher.Constraint("DistanceY", 9, 2, 15, 2, 3.386),
    Sketcher.Constraint("DistanceY", 20, 2, 24, 2, 3.309),
    Sketcher.Constraint("DistanceY", 33, 2, 29, 2, 3.309),
    Sketcher.Constraint("DistanceY", 44, 2, 32, 2, 10.385),
    Sketcher.Constraint("DistanceY", 45, 2, 41, 2, 3.309),
    Sketcher.Constraint("DistanceX", -1, 1, 0, 2, 11.1738),
])
pocket1 = body.newObject("PartDesign::Pocket", "Pocket")
pocket1.Profile = sketch4
pocket1.Length = 120

sketch5 = body.newObject("Sketcher::SketchObject", "Sketch004")
sketch5.AttachmentSupport = (doc.getObject("XZ_Plane"), [""])
sketch5.MapMode = "FlatFace"
sketch5.AttachmentOffset = App.Placement(Vector(0, 0, -12), App.Rotation())
add_polygon(sketch5, [(26.5, 98.8), (23.3, 98.8), (21.8, 101.5), (23.3, 104.2), (26.5, 104.2), (28, 101.5)])
add_polygon(sketch5, [(118.1, 101.5), (116.6, 98.8), (113.4, 98.8), (111.9, 101.5), (113.4, 104.2), (116.6, 104.2)])
sketch5.addGeometry(Part.Circle(Vector(115, 101.5, 0), Vector(0, 0, 1), 1.8), False)
add_polygon(sketch5, [(118.1, 8.5), (116.6, 5.8), (113.4, 5.8), (111.9, 8.5), (113.4, 11.2), (116.6, 11.2)])
sketch5.addGeometry(Part.Circle(Vector(115, 8.5, 0), Vector(0, 0, 1), 1.8), False)
add_polygon(sketch5, [(28, 8.5), (26.5, 5.8), (23.3, 5.8), (21.8, 8.5), (23.3, 11.2), (26.5, 11.2)])
sketch5.addConstraint([
    Sketcher.Constraint("Horizontal", 0),
    Sketcher.Constraint("Horizontal", 3),
    Sketcher.Constraint("Horizontal", 7),
    Sketcher.Constraint("Horizontal", 10),
    Sketcher.Constraint("Horizontal", 14),
    Sketcher.Constraint("Horizontal", 17),
    Sketcher.Constraint("Horizontal", 21),
    Sketcher.Constraint("Horizontal", 24),
    Sketcher.Constraint("Equal", 12, 19),
    Sketcher.Constraint("Parallel", 1, 4),
    Sketcher.Constraint("Parallel", 2, 5),
    Sketcher.Constraint("Parallel", 5, 6),
    Sketcher.Constraint("Parallel", 4, 8),
    Sketcher.Constraint("Parallel", 6, 9),
    Sketcher.Constraint("Parallel", 8, 11),
    Sketcher.Constraint("Parallel", 9, 13),
    Sketcher.Constraint("Parallel", 11, 15),
    Sketcher.Constraint("Parallel", 13, 16),
    Sketcher.Constraint("Parallel", 15, 18),
    Sketcher.Constraint("Parallel", 16, 20),
    Sketcher.Constraint("Parallel", 18, 22),
    Sketcher.Constraint("Parallel", 20, 23),
    Sketcher.Constraint("Parallel", 22, 25),
    Sketcher.Constraint("Horizontal", 12, 3, 1, 2),
    Sketcher.Constraint("Horizontal", 1, 2, 4, 2),
    Sketcher.Constraint("Horizontal", 5, 2, 6, 2),
    Sketcher.Constraint("Horizontal", 4, 2, 8, 2),
    Sketcher.Constraint("Horizontal", 3, 2, 9, 2),
    Sketcher.Constraint("Horizontal", 8, 2, 11, 2),
    Sketcher.Constraint("Horizontal", 19, 3, 15, 2),
    Sketcher.Constraint("Horizontal", 15, 2, 18, 2),
    Sketcher.Constraint("Horizontal", 14, 2, 20, 2),
    Sketcher.Constraint("Horizontal", 18, 2, 22, 2),
    Sketcher.Constraint("Horizontal", 17, 2, 23, 2),
    Sketcher.Constraint("Horizontal", 22, 2, 25, 2),
    Sketcher.Constraint("Vertical", 12, 3, 19, 3),
    Sketcher.Constraint("Vertical", 0, 2, 2, 2),
    Sketcher.Constraint("Vertical", 3, 2, 5, 2),
    Sketcher.Constraint("Vertical", 10, 2, 13, 2),
    Sketcher.Constraint("Vertical", 9, 2, 14, 2),
    Sketcher.Constraint("Vertical", 8, 2, 15, 2),
    Sketcher.Constraint("Vertical", 14, 2, 16, 2),
    Sketcher.Constraint("Vertical", 5, 2, 20, 2),
    Sketcher.Constraint("Vertical", 2, 2, 21, 2),
    Sketcher.Constraint("Equal", 3, 7),
    Sketcher.Constraint("Diameter", 12, 3.5),
    Sketcher.Constraint("DistanceY", 0, 2, 2, 2, 5.4),
    Sketcher.Constraint("Angle", 1, Q("120.0009 deg")),
    Sketcher.Constraint("DistanceX", -1, 1, 12, 3, 115.0),
    Sketcher.Constraint("DistanceY", 19, 3, 12, 3, 93.0),
    Sketcher.Constraint("DistanceY", -1, 1, 12, 3, 101.5),
    Sketcher.Constraint("DistanceX", 5, 2, 6, 2, 90.1),
    Sketcher.Constraint("DistanceX", 0, 2, 0, 1, 3.1176),
    Sketcher.Constraint("DistanceX", -1, 1, 0, 2, 23.3412),
])
pocket2 = body.newObject("PartDesign::Pocket", "Pocket001")
pocket2.Profile = sketch5
pocket2.Length = 2.4
pocket2.Reversed = True

sketch6 = body.newObject("Sketcher::SketchObject", "Sketch005")
sketch6.AttachmentSupport = (doc.getObject("YZ_Plane"), [""])
sketch6.MapMode = "FlatFace"
add_polygon(sketch6, [(2, 108), (10, 108), (10, 100), (2, 100)])
add_polygon(sketch6, [(2, 10), (10, 10), (10, 2), (2, 2)])
sketch6.addConstraint([
    Sketcher.Constraint("Horizontal", 0),
    Sketcher.Constraint("Vertical", 1),
    Sketcher.Constraint("Horizontal", 2),
    Sketcher.Constraint("Vertical", 3),
    Sketcher.Constraint("Horizontal", 4),
    Sketcher.Constraint("Vertical", 5),
    Sketcher.Constraint("Horizontal", 6),
    Sketcher.Constraint("Vertical", 7),
    Sketcher.Constraint("Vertical", 1, 2, 4, 2),
    Sketcher.Constraint("Vertical", 3, 2, 6, 2),
    Sketcher.Constraint("Equal", 6, 1),
    Sketcher.Constraint("Equal", 3, 5),
    Sketcher.Constraint("DistanceX", 0, 1, 0, 2, 7.0),
    Sketcher.Constraint("DistanceY", 4, 2, 1, 2, 91.0),
    Sketcher.Constraint("DistanceX", -1, 1, 0, 2, 9.5),
    Sketcher.Constraint("DistanceY", -1, 1, 0, 2, 107.5),
])
pocket3 = body.newObject("PartDesign::Pocket", "Pocket002")
pocket3.Profile = sketch6
pocket3.Length = 5
pocket3.Reversed = True

sketch7 = body.newObject("Sketcher::SketchObject", "Sketch006")
sketch7.AttachmentSupport = (doc.getObject("YZ_Plane"), [""])
sketch7.MapMode = "FlatFace"
sketch7.AttachmentOffset = App.Placement(Vector(0, 0, 180), App.Rotation())
add_polygon(sketch7, [(3, 101), (9, 101), (9, 107), (3, 107)])
add_polygon(sketch7, [(9, 9), (3, 9), (3, 3), (9, 3)])
sketch7.addConstraint([
    Sketcher.Constraint("Horizontal", 0),
    Sketcher.Constraint("Vertical", 1),
    Sketcher.Constraint("Horizontal", 2),
    Sketcher.Constraint("Vertical", 3),
    Sketcher.Constraint("Horizontal", 4),
    Sketcher.Constraint("Vertical", 5),
    Sketcher.Constraint("Horizontal", 6),
    Sketcher.Constraint("Vertical", 7),
    Sketcher.Constraint("Vertical", 3, 2, 4, 2),
    Sketcher.Constraint("Vertical", 1, 2, 6, 2),
    Sketcher.Constraint("Equal", 6, 1),
    Sketcher.Constraint("Equal", 3, 5),
    Sketcher.Constraint("DistanceX", 0, 1, 0, 2, 6.0),
    Sketcher.Constraint("DistanceX", -1, 1, 0, 2, 9.0),
    Sketcher.Constraint("DistanceY", -1, 1, 0, 2, 101.0),
    Sketcher.Constraint("DistanceY", -1, 1, 4, 2, 9.0),
])
pocket4 = body.newObject("PartDesign::Pocket", "Pocket003")
pocket4.Profile = sketch7
pocket4.Length = 5

doc.recompute()
